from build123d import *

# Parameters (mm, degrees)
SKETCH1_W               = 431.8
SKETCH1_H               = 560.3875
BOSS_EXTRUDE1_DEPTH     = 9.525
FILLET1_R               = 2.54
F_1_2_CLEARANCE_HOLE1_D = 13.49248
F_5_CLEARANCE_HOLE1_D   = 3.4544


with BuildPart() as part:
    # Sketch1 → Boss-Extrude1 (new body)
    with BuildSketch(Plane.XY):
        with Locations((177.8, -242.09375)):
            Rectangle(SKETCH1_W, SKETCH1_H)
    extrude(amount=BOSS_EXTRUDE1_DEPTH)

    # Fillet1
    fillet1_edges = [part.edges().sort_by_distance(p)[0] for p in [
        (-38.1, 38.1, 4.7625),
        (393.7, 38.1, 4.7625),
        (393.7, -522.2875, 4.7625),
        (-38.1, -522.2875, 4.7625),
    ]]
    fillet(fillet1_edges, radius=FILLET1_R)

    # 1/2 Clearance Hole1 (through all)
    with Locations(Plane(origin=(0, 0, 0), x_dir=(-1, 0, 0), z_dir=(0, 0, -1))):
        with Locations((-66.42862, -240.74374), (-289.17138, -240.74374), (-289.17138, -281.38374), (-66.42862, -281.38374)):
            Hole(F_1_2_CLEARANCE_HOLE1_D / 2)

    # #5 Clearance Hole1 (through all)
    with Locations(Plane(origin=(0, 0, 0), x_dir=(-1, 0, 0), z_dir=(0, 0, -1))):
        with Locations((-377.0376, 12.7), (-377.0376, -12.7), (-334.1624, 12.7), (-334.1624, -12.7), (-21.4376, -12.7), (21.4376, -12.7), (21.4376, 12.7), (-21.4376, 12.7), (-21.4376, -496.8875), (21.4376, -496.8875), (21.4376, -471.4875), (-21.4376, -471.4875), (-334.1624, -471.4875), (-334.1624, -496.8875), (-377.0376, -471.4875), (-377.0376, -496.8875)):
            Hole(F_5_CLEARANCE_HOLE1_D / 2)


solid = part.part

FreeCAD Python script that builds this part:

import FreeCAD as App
import Part
import Sketcher
Q = App.Units.Quantity


def edges_at(feature, points):
    """Names of the edges that pass closest to the given points."""
    edges = feature.Shape.Edges
    near = lambda p: min(range(len(edges)), key=lambda i: edges[i].distToShape(Part.Vertex(*p))[0])
    return sorted({f"Edge{near(p) + 1}" for p in points})


def add_polygon(sketch, points):
    """Adds a closed chain of lines whose ends are joined by coincident constraints."""
    first, n = sketch.GeometryCount, len(points)
    for a, b in zip(points, points[1:] + points[:1]):
        sketch.addGeometry(Part.LineSegment(App.Vector(*a, 0), App.Vector(*b, 0)), False)
    for i in range(n):
        sketch.addConstraint(Sketcher.Constraint("Coincident", first + i, 2, first + (i + 1) % n, 1))

doc = App.newDocument("Part")
body = doc.addObject("PartDesign::Body", "Body")

# Sketch on XY plane
sketch1 = body.newObject("Sketcher::SketchObject", "Sketch")
sketch1.AttachmentSupport = (doc.getObject("XY_Plane"), [""])
sketch1.MapMode = "FlatFace"
add_polygon(sketch1, [(-38.1, 38.1), (-38.1, -522.2875), (393.7, -522.2875), (393.7, 38.1)])  # lines 0-3
sketch1.addConstraint([
    Sketcher.Constraint("Vertical", 0),
    Sketcher.Constraint("Horizontal", 1),
    Sketcher.Constraint("Vertical", 2),
    Sketcher.Constraint("Horizontal", 3),
    Sketcher.Constraint("DistanceX", 1, 1, 1, 2, Q("17 in")),
    Sketcher.Constraint("DistanceX", 0, 2, -1, 1, Q("1.5 in")),
    Sketcher.Constraint("DistanceY", -1, 1, 2, 2, Q("1.5 in")),
    Sketcher.Constraint("DistanceY", 0, 2, 0, 1, Q("22.0625 in")),
])
pad1 = body.newObject("PartDesign::Pad", "Pad")
pad1.Profile = sketch1
pad1.Length = Q("0.375 in")
doc.recompute()

fillet = body.newObject("PartDesign::Fillet", "Fillet")
fillet.Base = (pad1, edges_at(pad1, [
    (-38.1, 38.1, 4.763),
    (393.7, 38.1, 4.763),
    (393.7, -522.288, 4.763),
    (-38.1, -522.288, 4.763),
]))
fillet.Radius = Q("0.1 in")

# Sketch on XY plane
sketch2 = body.newObject("Sketcher::SketchObject", "Sketch001")
sketch2.AttachmentSupport = (doc.getObject("XY_Plane"), [""])
sketch2.MapMode = "FlatFace"
sketch2.addGeometry([
    Part.Circle(App.Vector(66.42862, -240.74374, 0), App.Vector(0, 0, 1), 6.74624),
    Part.Circle(App.Vector(289.17138, -240.74374, 0), App.Vector(0, 0, 1), 6.74624),
    Part.Circle(App.Vector(289.17138, -281.38374, 0), App.Vector(0, 0, 1), 6.74624),
    Part.Circle(App.Vector(66.42862, -281.38374, 0), App.Vector(0, 0, 1), 6.74624),
], False)
sketch2.addConstraint([
    Sketcher.Constraint("Equal", 0, 1),
    Sketcher.Constraint("Equal", 1, 2),
    Sketcher.Constraint("Equal", 2, 3),
    Sketcher.Constraint("Horizontal", 0, 3, 1, 3),
    Sketcher.Constraint("Horizontal", 2, 3, 3, 3),
    Sketcher.Constraint("Vertical", 1, 3, 2, 3),
    Sketcher.Constraint("Vertical", 0, 3, 3, 3),
    Sketcher.Constraint("Diameter", 0, Q("0.5312 in")),
    Sketcher.Constraint("DistanceY", 2, 3, 1, 3, Q("1.6 in")),
    Sketcher.Constraint("DistanceX", -1, 1, 0, 3, Q("2.6153 in")),
    Sketcher.Constraint("DistanceY", 0, 3, -1, 1, Q("9.4781 in")),
    Sketcher.Constraint("DistanceX", -1, 1, 1, 3, Q("11.3847 in")),
])
doc.recompute()
hole = body.newObject("PartDesign::Hole", "Hole")
hole.Profile = sketch2
hole.ThreadType = "None"
hole.Diameter = Q("0.5312 in")
hole.DepthType = "ThroughAll"
hole.Reversed = True

# Sketch on XY plane
sketch3 = body.newObject("Sketcher::SketchObject", "Sketch002")
sketch3.AttachmentSupport = (doc.getObject("XY_Plane"), [""])
sketch3.MapMode = "FlatFace"
sketch3.addGeometry([
    Part.Circle(App.Vector(377.0376, 12.7, 0), App.Vector(0, 0, 1), 1.7272),  # 0
    Part.Circle(App.Vector(377.0376, -12.7, 0), App.Vector(0, 0, 1), 1.7272),  # 1
    Part.Circle(App.Vector(334.1624, 12.7, 0), App.Vector(0, 0, 1), 1.7272),  # 2
    Part.Circle(App.Vector(334.1624, -12.7, 0), App.Vector(0, 0, 1), 1.7272),  # 3
    Part.Circle(App.Vector(21.4376, -12.7, 0), App.Vector(0, 0, 1), 1.7272),  # 4
    Part.Circle(App.Vector(-21.4376, -12.7, 0), App.Vector(0, 0, 1), 1.7272),  # 5
    Part.Circle(App.Vector(-21.4376, 12.7, 0), App.Vector(0, 0, 1), 1.7272),  # 6
    Part.Circle(App.Vector(21.4376, 12.7, 0), App.Vector(0, 0, 1), 1.7272),  # 7
    Part.Circle(App.Vector(21.4376, -496.8875, 0), App.Vector(0, 0, 1), 1.7272),  # 8
    Part.Circle(App.Vector(-21.4376, -496.8875, 0), App.Vector(0, 0, 1), 1.7272),  # 9
    Part.Circle(App.Vector(-21.4376, -471.4875, 0), App.Vector(0, 0, 1), 1.7272),  # 10
    Part.Circle(App.Vector(21.4376, -471.4875, 0), App.Vector(0, 0, 1), 1.7272),  # 11
    Part.Circle(App.Vector(334.1624, -471.4875, 0), App.Vector(0, 0, 1), 1.7272),  # 12
    Part.Circle(App.Vector(334.1624, -496.8875, 0), App.Vector(0, 0, 1), 1.7272),  # 13
    Part.Circle(App.Vector(377.0376, -471.4875, 0), App.Vector(0, 0, 1), 1.7272),  # 14
    Part.Circle(App.Vector(377.0376, -496.8875, 0), App.Vector(0, 0, 1), 1.7272),  # 15
], False)
sketch3.addConstraint([
    Sketcher.Constraint("Equal", 0, 1),
    Sketcher.Constraint("Equal", 1, 2),
    Sketcher.Constraint("Equal", 2, 3),
    Sketcher.Constraint("Equal", 3, 4),
    Sketcher.Constraint("Equal", 4, 5),
    Sketcher.Constraint("Equal", 5, 6),
    Sketcher.Constraint("Equal", 6, 7),
    Sketcher.Constraint("Equal", 7, 8),
    Sketcher.Constraint("Equal", 8, 9),
    Sketcher.Constraint("Equal", 9, 10),
    Sketcher.Constraint("Equal", 10, 11),
    Sketcher.Constraint("Equal", 11, 12),
    Sketcher.Constraint("Equal", 12, 13),
    Sketcher.Constraint("Equal", 13, 14),
    Sketcher.Constraint("Equal", 14, 15),
    Sketcher.Constraint("Symmetric", 4, 3, 6, 3, -1, 1),
    Sketcher.Constraint("Symmetric", 5, 3, 7, 3, -1, 1),
    Sketcher.Constraint("Symmetric", 4, 3, 5, 3, -2),
    Sketcher.Constraint("Symmetric", 8, 3, 9, 3, -2),
    Sketcher.Constraint("Symmetric", 10, 3, 11, 3, -2),
    Sketcher.Constraint("Symmetric", 0, 3, 1, 3, -1),
    Sketcher.Constraint("Symmetric", 2, 3, 3, 3, -1),
    Sketcher.Constraint("Horizontal", 0, 3, 2, 3),
    Sketcher.Constraint("Horizontal", 3, 3, 4, 3),
    Sketcher.Constraint("Horizontal", 11, 3, 12, 3),
    Sketcher.Constraint("Horizontal", 9, 3, 13, 3),
    Sketcher.Constraint("Horizontal", 12, 3, 14, 3),
    Sketcher.Constraint("Horizontal", 13, 3, 15, 3),
    Sketcher.Constraint("Vertical", 7, 3, 8, 3),
    Sketcher.Constraint("Vertical", 9, 3, 10, 3),
    Sketcher.Constraint("Vertical", 3, 3, 12, 3),
    Sketcher.Constraint("Vertical", 12, 3, 13, 3),
    Sketcher.Constraint("Vertical", 1, 3, 14, 3),
    Sketcher.Constraint("Vertical", 14, 3, 15, 3),
    Sketcher.Constraint("Diameter", 0, Q("0.136 in")),
    Sketcher.Constraint("DistanceY", 1, 3, 0, 3, Q("1 in")),
    Sketcher.Constraint("DistanceX", 4, 3, 1, 3, Q("14 in")),
    Sketcher.Constraint("DistanceX", 5, 3, 3, 3, Q("14 in")),
    Sketcher.Constraint("DistanceY", 9, 3, 10, 3, Q("1 in")),
    Sketcher.Constraint("DistanceX", -1, 1, 0, 3, Q("14.844 in")),
    Sketcher.Constraint("DistanceY", 8, 3, -1, 1, Q("19.5625 in")),
])
doc.recompute()
hole2 = body.newObject("PartDesign::Hole", "Hole001")
hole2.Profile = sketch3
hole2.ThreadType = "None"
hole2.Diameter = Q("0.136 in")
hole2.DepthType = "ThroughAll"
hole2.Reversed = True

doc.recompute()
